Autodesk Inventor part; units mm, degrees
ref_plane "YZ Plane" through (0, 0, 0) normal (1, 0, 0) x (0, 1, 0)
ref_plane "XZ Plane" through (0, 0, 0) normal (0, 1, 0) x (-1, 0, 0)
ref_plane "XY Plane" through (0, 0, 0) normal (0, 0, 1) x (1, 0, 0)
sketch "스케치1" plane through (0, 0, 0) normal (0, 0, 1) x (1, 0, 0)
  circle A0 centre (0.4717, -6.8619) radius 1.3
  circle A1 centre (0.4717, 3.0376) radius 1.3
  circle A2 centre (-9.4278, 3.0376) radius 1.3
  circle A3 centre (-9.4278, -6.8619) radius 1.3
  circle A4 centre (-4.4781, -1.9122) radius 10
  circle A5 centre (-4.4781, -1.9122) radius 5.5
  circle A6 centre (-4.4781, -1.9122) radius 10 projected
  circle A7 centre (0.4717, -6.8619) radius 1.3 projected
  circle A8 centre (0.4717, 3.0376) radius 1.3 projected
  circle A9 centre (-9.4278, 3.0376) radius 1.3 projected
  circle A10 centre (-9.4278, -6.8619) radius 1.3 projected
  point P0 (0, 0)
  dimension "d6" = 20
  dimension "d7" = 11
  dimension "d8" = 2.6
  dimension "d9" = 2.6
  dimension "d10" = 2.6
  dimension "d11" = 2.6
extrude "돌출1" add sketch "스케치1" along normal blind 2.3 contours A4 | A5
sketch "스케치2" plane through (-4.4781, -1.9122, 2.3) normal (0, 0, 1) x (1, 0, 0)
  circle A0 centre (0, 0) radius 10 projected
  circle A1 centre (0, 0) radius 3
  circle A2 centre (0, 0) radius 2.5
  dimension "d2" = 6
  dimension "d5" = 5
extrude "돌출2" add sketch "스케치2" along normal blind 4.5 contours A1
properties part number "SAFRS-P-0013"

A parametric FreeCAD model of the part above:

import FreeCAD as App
import Part
import Sketcher
from FreeCAD import Vector
Q = App.Units.Quantity

doc = App.newDocument("Part")
params = doc.addObject("Spreadsheet::Sheet", "Params")
for row, (alias, value) in enumerate([
    ("sketch1_diameter", "20 mm"),
    ("sketch1_diameter2", "2.6 mm"),
    ("pad1_length", "2.3 mm"),
    ("sketch2_diameter", "6 mm"),
    ("sketch2_diameter2", "5 mm"),
    ("pad2_length", "4.5 mm"),
], start=1):
    params.set(f"A{row}", alias)
    params.set(f"B{row}", "=" + value)
    params.setAlias(f"B{row}", alias)

body = doc.addObject("PartDesign::Body", "Body")

# Sketch on XY plane
sketch1 = body.newObject("Sketcher::SketchObject", "Sketch")
sketch1.AttachmentSupport = (doc.getObject("XY_Plane"), [""])
sketch1.MapMode = "FlatFace"
sketch1.addGeometry([
    Part.Circle(Vector(-4.5, -1.9, 0), Vector(0, 0, 1), 10),  # 0
    Part.Circle(Vector(-9.4, -6.9, 0), Vector(0, 0, 1), 1.3),  # 1
    Part.Circle(Vector(0.5, -6.9, 0), Vector(0, 0, 1), 1.3),  # 2
    Part.Circle(Vector(-9.4, 3, 0), Vector(0, 0, 1), 1.3),  # 3
    Part.Circle(Vector(0.5, 3, 0), Vector(0, 0, 1), 1.3),  # 4
], False)
sketch1.addConstraint([
    Sketcher.Constraint("Equal", 1, 2),
    Sketcher.Constraint("Equal", 2, 3),
    Sketcher.Constraint("Equal", 3, 4),
    Sketcher.Constraint("Horizontal", 1, 3, 2, 3),
    Sketcher.Constraint("Horizontal", 3, 3, 4, 3),
    Sketcher.Constraint("Vertical", 1, 3, 3, 3),
    Sketcher.Constraint("Vertical", 2, 3, 4, 3),
    Sketcher.Constraint("Diameter", 0, Q("20 mm")),
    Sketcher.Constraint("Diameter", 1, Q("2.6 mm")),
    Sketcher.Constraint("DistanceX", 0, 3, -1, 1, Q("4.478 mm")),
    Sketcher.Constraint("DistanceY", 1, 3, -1, 1, Q("6.862 mm")),
    Sketcher.Constraint("DistanceY", 0, 3, -1, 1, Q("1.9122 mm")),
    Sketcher.Constraint("DistanceX", 1, 3, -1, 1, Q("9.4278 mm")),
    Sketcher.Constraint("DistanceX", -1, 1, 2, 3, Q("0.4717 mm")),
    Sketcher.Constraint("DistanceY", -1, 1, 3, 3, Q("3.0376 mm")),
])
sketch1.setExpression("Constraints[7]", "Params.sketch1_diameter")
sketch1.setExpression("Constraints[8]", "Params.sketch1_diameter2")
pad1 = body.newObject("PartDesign::Pad", "Pad")
pad1.Profile = sketch1
pad1.setExpression("Length", "Params.pad1_length")

# Sketch on XY plane
sketch2 = body.newObject("Sketcher::SketchObject", "Sketch001")
sketch2.AttachmentSupport = (doc.getObject("XY_Plane"), [""])
sketch2.MapMode = "FlatFace"
sketch2.AttachmentOffset = App.Placement(Vector(0, 0, 2.3), App.Rotation())
sketch2.addGeometry([
    Part.Circle(Vector(-4.5, -1.9, 0), Vector(0, 0, 1), 3),
    Part.Circle(Vector(-4.5, -1.9, 0), Vector(0, 0, 1), 2.5),
], False)
sketch2.addConstraint([
    Sketcher.Constraint("Coincident", 1, 3, 0, 3),
    Sketcher.Constraint("Diameter", 0, Q("6 mm")),
    Sketcher.Constraint("Diameter", 1, Q("5 mm")),
    Sketcher.Constraint("DistanceX", 0, 3, -1, 1, Q("4.478 mm")),
    Sketcher.Constraint("DistanceY", 0, 3, -1, 1, Q("1.9122 mm")),
])
sketch2.setExpression("Constraints[1]", "Params.sketch2_diameter")
sketch2.setExpression("Constraints[2]", "Params.sketch2_diameter2")
pad2 = body.newObject("PartDesign::Pad", "Pad001")
pad2.Profile = sketch2
pad2.setExpression("Length", "Params.pad2_length")

doc.recompute()
